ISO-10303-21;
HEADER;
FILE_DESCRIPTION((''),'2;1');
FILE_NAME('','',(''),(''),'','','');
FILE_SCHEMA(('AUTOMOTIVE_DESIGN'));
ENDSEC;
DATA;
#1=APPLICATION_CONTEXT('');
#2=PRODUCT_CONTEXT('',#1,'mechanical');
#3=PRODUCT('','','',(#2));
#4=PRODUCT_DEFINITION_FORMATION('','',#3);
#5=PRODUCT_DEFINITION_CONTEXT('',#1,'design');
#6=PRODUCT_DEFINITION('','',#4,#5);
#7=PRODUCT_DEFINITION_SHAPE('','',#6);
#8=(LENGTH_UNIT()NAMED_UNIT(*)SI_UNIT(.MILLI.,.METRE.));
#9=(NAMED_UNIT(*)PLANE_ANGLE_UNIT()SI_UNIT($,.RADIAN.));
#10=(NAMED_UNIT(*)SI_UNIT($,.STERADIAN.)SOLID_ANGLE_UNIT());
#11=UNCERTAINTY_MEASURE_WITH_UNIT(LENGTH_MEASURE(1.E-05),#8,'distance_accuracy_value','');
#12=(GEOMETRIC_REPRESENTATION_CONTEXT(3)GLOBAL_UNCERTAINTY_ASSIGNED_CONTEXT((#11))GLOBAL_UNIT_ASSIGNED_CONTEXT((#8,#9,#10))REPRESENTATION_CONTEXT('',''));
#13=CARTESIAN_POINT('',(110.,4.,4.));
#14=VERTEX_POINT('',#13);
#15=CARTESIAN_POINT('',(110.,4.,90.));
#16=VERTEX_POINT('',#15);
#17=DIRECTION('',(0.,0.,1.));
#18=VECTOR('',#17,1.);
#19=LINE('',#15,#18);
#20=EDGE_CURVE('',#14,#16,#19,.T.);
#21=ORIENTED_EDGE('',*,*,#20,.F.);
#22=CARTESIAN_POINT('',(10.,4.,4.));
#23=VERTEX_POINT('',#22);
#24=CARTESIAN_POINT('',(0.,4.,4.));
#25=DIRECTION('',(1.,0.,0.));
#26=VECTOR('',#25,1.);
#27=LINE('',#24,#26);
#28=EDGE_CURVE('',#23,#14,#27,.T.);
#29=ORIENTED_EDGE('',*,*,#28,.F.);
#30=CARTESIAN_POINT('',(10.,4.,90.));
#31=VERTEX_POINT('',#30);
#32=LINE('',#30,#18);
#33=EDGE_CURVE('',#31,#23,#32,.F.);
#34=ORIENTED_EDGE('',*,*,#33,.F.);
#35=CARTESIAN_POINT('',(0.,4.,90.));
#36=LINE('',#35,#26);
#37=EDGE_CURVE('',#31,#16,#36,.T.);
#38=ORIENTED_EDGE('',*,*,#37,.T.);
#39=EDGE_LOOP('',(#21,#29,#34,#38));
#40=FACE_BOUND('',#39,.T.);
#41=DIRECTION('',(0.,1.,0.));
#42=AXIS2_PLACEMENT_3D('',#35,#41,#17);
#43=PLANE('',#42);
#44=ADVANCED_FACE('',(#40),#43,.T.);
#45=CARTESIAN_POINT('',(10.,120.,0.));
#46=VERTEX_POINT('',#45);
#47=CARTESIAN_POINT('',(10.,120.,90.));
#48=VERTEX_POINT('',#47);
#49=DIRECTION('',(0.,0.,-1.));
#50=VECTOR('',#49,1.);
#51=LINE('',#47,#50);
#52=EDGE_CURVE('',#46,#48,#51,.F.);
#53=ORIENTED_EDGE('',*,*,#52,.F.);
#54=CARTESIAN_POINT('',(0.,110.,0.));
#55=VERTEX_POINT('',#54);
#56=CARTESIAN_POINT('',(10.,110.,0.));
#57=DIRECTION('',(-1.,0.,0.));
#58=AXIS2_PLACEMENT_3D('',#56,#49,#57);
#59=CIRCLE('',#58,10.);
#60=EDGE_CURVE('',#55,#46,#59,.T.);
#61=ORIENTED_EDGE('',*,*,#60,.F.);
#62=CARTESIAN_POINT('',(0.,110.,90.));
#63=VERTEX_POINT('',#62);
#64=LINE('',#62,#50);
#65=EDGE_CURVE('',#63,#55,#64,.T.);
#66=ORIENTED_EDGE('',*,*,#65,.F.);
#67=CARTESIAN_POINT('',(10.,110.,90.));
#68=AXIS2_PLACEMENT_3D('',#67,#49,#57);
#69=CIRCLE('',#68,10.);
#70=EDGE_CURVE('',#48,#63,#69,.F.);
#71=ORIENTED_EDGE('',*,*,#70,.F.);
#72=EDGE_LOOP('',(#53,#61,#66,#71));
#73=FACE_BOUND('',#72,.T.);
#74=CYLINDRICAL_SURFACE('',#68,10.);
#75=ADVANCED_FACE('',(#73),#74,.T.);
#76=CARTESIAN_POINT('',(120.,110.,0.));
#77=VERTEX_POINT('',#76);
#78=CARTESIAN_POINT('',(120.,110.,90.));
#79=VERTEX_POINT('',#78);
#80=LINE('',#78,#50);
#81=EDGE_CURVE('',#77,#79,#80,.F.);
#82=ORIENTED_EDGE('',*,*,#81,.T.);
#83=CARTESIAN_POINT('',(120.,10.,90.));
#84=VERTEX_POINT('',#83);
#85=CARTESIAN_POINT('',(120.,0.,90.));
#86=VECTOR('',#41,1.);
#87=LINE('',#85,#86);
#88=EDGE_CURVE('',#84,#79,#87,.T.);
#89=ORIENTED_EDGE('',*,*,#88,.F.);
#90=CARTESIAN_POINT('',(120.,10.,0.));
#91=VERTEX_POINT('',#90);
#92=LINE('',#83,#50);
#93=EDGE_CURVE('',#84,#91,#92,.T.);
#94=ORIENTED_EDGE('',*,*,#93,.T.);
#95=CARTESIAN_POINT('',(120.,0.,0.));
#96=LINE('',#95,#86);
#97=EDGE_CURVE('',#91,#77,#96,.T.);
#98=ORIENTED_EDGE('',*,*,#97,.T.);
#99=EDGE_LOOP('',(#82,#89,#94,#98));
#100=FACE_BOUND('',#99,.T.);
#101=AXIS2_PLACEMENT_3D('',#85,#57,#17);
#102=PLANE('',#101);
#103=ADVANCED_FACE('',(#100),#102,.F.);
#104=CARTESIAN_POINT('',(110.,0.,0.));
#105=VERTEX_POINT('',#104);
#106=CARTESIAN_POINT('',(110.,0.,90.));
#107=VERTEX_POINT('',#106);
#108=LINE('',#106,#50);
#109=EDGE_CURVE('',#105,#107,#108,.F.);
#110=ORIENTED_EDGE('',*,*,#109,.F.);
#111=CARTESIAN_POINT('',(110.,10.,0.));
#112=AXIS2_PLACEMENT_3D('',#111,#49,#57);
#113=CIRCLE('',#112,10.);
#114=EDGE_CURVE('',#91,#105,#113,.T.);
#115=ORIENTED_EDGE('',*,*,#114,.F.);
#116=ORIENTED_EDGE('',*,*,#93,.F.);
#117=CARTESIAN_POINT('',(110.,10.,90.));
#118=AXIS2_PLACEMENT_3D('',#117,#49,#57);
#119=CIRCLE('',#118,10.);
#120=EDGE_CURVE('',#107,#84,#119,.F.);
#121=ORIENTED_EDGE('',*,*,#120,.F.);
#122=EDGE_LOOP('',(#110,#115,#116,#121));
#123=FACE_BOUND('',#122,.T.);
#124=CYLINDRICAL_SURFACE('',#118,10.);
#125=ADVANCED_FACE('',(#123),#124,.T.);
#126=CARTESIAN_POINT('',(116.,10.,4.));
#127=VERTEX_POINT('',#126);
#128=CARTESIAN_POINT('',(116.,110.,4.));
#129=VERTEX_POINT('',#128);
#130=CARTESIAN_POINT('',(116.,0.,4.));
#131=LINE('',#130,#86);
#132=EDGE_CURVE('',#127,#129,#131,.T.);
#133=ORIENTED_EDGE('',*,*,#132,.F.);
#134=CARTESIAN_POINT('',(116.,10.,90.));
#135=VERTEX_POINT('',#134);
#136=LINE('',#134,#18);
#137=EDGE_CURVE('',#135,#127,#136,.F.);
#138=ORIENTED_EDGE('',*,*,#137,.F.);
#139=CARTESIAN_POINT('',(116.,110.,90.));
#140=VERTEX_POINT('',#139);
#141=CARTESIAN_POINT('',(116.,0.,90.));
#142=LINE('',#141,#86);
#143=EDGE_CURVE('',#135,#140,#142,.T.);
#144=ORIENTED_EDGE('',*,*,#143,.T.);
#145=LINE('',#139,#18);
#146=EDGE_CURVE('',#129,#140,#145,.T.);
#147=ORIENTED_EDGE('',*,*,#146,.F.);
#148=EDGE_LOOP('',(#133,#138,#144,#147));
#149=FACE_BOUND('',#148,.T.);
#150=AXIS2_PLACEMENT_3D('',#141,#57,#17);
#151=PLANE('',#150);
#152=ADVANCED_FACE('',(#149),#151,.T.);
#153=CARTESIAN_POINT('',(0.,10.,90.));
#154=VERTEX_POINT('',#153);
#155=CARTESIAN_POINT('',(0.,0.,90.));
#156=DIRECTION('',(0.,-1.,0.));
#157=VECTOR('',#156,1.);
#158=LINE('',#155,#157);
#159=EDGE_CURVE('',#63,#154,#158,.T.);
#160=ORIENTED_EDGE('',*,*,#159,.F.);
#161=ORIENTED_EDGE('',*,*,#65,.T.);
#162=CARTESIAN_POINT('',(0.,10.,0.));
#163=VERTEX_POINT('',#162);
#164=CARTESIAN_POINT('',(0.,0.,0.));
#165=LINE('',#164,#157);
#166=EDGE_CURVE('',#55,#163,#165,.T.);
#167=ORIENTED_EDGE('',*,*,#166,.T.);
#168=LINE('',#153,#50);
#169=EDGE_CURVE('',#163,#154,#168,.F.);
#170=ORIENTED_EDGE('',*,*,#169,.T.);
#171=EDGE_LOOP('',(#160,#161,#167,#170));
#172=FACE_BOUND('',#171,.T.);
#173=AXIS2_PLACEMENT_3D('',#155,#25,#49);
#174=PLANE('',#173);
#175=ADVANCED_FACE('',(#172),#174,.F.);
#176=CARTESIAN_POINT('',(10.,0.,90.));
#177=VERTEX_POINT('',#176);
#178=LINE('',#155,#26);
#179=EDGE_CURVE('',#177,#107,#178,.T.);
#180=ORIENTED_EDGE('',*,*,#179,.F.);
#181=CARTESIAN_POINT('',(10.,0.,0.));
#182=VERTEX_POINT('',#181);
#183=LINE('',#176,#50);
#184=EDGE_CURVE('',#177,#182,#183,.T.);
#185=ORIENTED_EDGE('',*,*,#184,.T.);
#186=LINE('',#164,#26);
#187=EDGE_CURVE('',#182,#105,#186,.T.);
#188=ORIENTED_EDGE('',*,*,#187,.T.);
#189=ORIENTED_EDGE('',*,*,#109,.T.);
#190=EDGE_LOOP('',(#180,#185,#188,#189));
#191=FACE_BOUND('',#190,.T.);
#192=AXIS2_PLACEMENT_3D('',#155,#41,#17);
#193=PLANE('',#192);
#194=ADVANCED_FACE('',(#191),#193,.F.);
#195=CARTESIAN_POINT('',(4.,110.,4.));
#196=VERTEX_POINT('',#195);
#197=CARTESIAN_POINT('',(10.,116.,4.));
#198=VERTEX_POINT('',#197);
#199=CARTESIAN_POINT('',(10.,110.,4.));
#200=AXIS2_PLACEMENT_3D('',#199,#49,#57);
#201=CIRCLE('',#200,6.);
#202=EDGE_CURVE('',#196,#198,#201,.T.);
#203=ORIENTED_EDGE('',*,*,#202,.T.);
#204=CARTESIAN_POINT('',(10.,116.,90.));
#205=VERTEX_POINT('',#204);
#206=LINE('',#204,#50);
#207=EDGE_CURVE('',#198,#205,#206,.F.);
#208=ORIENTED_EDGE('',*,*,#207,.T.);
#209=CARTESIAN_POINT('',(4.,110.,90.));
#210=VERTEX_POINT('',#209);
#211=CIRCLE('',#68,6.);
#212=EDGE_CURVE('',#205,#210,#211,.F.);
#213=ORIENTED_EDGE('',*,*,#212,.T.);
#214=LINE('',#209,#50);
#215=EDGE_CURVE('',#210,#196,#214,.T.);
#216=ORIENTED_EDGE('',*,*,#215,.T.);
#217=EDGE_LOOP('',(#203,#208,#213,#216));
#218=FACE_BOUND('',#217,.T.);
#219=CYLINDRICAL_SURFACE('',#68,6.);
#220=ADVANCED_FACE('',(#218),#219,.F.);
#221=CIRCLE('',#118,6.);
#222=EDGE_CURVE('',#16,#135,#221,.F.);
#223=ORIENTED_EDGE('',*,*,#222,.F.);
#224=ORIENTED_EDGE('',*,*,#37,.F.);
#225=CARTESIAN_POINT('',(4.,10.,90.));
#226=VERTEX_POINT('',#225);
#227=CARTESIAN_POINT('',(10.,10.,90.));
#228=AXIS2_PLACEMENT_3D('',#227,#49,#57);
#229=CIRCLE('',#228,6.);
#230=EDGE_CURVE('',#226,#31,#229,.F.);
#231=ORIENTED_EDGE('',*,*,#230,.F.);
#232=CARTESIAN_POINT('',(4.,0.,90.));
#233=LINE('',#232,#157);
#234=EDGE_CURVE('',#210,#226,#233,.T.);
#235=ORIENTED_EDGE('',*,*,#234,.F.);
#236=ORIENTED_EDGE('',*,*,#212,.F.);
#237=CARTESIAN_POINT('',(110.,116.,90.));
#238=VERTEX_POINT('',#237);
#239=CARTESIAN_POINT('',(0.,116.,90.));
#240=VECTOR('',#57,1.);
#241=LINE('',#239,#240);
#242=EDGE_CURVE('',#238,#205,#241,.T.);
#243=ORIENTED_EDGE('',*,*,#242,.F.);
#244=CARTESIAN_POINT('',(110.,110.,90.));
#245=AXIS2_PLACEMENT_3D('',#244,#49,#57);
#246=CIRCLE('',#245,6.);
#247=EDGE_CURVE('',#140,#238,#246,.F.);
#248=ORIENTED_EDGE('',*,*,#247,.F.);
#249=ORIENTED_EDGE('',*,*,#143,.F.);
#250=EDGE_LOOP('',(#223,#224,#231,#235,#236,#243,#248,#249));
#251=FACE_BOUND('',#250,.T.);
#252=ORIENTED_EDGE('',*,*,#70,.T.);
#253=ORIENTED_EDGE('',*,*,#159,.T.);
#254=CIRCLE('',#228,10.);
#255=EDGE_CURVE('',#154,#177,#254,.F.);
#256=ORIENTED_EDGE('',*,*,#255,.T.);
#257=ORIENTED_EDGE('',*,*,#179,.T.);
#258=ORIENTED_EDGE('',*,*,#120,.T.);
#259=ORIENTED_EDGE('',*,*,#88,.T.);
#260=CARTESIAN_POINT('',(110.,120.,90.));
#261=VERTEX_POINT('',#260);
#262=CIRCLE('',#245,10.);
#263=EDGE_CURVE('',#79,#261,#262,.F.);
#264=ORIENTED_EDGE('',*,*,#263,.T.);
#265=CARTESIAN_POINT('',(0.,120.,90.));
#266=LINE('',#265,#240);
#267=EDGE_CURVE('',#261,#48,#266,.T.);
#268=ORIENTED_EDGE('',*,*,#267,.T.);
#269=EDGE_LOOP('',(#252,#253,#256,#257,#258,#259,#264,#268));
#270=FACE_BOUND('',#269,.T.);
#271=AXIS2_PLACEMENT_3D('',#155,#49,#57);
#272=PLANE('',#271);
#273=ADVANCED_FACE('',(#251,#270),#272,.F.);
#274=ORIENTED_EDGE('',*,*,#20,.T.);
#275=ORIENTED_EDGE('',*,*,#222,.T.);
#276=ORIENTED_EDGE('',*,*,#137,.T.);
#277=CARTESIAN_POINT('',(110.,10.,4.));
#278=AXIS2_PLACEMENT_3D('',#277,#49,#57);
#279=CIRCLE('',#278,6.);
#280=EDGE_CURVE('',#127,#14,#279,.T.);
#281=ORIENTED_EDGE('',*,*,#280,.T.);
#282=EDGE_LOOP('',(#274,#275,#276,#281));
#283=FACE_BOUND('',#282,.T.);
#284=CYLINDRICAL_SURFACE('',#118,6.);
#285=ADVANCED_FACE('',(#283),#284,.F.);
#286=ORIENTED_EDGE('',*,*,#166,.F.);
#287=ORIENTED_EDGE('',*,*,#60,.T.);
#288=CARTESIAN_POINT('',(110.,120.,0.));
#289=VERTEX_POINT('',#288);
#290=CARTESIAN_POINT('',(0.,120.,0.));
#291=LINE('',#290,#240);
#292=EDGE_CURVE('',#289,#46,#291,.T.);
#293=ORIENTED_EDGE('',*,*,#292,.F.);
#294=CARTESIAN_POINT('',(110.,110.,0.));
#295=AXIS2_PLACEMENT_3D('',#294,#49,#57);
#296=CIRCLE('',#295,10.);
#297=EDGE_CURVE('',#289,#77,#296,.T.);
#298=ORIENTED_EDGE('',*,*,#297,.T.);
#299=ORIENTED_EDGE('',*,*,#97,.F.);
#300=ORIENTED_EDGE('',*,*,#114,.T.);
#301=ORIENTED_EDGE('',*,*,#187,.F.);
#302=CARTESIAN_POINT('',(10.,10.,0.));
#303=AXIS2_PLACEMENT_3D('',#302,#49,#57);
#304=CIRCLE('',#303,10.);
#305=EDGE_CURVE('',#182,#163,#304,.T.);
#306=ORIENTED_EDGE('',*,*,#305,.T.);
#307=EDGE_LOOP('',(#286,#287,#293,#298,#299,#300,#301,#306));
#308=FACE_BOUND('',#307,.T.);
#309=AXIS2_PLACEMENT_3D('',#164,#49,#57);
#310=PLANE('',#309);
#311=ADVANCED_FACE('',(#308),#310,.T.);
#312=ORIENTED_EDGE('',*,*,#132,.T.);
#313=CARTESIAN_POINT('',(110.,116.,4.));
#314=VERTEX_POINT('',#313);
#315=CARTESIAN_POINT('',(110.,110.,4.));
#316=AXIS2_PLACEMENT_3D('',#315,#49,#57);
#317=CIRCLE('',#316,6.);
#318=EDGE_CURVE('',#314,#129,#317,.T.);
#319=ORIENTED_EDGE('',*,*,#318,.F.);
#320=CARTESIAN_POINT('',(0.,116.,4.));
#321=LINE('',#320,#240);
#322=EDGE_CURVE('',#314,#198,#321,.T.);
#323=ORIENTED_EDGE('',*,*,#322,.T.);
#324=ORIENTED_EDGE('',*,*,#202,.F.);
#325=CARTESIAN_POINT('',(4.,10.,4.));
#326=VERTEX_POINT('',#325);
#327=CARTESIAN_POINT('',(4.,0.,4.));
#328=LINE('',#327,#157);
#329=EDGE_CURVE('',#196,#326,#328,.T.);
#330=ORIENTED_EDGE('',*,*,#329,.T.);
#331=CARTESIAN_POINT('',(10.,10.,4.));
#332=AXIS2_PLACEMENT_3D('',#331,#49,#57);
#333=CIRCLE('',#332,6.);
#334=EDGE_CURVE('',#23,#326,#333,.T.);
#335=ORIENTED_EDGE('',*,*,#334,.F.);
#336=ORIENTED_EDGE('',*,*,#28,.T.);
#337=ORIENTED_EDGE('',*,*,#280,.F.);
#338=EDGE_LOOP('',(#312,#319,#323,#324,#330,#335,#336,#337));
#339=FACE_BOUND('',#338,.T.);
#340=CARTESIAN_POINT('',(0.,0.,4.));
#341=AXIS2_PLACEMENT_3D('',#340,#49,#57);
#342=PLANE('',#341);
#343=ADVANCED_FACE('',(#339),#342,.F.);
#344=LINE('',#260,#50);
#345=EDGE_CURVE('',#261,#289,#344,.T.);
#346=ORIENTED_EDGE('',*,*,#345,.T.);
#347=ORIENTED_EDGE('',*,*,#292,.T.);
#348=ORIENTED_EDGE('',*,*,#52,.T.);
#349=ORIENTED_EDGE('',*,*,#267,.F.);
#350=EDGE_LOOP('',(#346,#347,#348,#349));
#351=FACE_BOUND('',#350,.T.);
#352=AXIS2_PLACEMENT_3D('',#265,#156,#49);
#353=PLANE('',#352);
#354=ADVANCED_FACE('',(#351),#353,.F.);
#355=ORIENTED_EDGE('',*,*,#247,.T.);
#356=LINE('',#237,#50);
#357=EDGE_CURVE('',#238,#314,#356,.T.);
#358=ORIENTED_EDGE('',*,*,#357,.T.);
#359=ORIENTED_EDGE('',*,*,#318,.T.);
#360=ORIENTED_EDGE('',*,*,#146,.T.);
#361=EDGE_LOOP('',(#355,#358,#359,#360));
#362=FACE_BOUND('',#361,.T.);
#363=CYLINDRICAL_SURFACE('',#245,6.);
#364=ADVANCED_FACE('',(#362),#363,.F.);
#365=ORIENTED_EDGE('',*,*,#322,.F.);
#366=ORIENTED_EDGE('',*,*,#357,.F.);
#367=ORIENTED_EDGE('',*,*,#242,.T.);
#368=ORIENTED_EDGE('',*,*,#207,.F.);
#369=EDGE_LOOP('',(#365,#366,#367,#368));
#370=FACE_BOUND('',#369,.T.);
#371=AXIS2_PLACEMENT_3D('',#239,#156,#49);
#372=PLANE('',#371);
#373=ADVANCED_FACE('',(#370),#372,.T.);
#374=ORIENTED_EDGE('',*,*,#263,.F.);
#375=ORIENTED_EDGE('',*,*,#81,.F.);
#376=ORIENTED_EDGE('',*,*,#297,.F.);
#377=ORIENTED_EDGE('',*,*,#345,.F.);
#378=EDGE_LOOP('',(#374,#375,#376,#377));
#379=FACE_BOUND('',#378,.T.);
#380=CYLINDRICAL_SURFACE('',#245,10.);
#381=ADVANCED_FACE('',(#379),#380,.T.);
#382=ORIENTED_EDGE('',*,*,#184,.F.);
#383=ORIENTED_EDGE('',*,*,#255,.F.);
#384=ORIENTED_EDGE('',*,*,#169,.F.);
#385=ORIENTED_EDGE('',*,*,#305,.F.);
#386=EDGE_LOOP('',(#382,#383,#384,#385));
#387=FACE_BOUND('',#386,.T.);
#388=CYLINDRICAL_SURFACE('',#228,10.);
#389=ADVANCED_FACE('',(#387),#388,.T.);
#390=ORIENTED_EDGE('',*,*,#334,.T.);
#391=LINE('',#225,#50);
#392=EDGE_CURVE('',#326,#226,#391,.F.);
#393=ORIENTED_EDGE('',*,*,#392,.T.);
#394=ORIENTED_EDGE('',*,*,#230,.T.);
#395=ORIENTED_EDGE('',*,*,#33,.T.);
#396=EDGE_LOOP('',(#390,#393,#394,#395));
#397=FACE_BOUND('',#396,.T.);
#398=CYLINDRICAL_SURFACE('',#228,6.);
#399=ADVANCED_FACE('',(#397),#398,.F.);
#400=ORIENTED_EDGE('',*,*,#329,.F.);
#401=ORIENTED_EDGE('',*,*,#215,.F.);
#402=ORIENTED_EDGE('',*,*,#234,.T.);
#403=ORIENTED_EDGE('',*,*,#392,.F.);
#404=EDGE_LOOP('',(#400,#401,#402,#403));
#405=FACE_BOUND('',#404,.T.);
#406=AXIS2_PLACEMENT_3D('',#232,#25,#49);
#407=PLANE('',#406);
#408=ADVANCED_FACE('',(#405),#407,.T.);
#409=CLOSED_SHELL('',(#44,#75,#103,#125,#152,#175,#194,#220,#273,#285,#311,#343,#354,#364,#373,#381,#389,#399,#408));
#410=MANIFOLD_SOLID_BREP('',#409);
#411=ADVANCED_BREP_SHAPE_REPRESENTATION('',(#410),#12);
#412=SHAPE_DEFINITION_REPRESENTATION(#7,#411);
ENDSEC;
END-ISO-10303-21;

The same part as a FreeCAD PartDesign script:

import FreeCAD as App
import Part
import Sketcher

V = App.Vector


def edges_at(feature, points):
    """Names of the edges that pass closest to the given points."""
    edges = feature.Shape.Edges
    near = lambda p: min(range(len(edges)), key=lambda i: edges[i].distToShape(Part.Vertex(*p))[0])
    return sorted({f"Edge{near(p) + 1}" for p in points})


def faces_at(feature, points):
    """Names of the faces that lie closest to the given points."""
    faces = feature.Shape.Faces
    near = lambda p: min(range(len(faces)), key=lambda i: faces[i].distToShape(Part.Vertex(*p))[0])
    return sorted({f"Face{near(p) + 1}" for p in points})


def add_polygon(sketch, points):
    """Adds a closed chain of lines whose ends are joined by coincident constraints."""
    first, n = sketch.GeometryCount, len(points)
    for a, b in zip(points, points[1:] + points[:1]):
        sketch.addGeometry(Part.LineSegment(App.Vector(*a, 0), App.Vector(*b, 0)), False)
    for i in range(n):
        sketch.addConstraint(Sketcher.Constraint("Coincident", first + i, 2, first + (i + 1) % n, 1))

doc = App.newDocument("Part")
body = doc.addObject("PartDesign::Body", "Body")

sketch1 = body.newObject("Sketcher::SketchObject", "Sketch")
sketch1.AttachmentSupport = (doc.getObject("XY_Plane"), [""])
sketch1.MapMode = "FlatFace"
add_polygon(sketch1, [(0, 120), (0, 0), (120, 0), (120, 120)])
sketch1.addConstraint([
    Sketcher.Constraint("Vertical", 0),
    Sketcher.Constraint("Horizontal", 1),
    Sketcher.Constraint("Vertical", 2),
    Sketcher.Constraint("Horizontal", 3),
    Sketcher.Constraint("Coincident", 0, 2, -1, 1),
    Sketcher.Constraint("Equal", 3, 0),
    Sketcher.Constraint("DistanceX", 1, 1, 1, 2, 120.0),
])
pad1 = body.newObject("PartDesign::Pad", "Pad")
pad1.Profile = sketch1
pad1.Length = 90
doc.recompute()

fillet = body.newObject("PartDesign::Fillet", "Fillet")
fillet.Base = (pad1, edges_at(pad1, [
    (0, 120, 45),
    (120, 120, 45),
    (120, 0, 45),
    (0, 0, 45),
]))
fillet.Radius = 10
doc.recompute()

thickness = body.newObject("PartDesign::Thickness", "Thickness")
thickness.Base = (fillet, faces_at(fillet, [(60, 60, 90)]))
thickness.Value = 4
thickness.Reversed = True
thickness.Join = "Intersection"

doc.recompute()
